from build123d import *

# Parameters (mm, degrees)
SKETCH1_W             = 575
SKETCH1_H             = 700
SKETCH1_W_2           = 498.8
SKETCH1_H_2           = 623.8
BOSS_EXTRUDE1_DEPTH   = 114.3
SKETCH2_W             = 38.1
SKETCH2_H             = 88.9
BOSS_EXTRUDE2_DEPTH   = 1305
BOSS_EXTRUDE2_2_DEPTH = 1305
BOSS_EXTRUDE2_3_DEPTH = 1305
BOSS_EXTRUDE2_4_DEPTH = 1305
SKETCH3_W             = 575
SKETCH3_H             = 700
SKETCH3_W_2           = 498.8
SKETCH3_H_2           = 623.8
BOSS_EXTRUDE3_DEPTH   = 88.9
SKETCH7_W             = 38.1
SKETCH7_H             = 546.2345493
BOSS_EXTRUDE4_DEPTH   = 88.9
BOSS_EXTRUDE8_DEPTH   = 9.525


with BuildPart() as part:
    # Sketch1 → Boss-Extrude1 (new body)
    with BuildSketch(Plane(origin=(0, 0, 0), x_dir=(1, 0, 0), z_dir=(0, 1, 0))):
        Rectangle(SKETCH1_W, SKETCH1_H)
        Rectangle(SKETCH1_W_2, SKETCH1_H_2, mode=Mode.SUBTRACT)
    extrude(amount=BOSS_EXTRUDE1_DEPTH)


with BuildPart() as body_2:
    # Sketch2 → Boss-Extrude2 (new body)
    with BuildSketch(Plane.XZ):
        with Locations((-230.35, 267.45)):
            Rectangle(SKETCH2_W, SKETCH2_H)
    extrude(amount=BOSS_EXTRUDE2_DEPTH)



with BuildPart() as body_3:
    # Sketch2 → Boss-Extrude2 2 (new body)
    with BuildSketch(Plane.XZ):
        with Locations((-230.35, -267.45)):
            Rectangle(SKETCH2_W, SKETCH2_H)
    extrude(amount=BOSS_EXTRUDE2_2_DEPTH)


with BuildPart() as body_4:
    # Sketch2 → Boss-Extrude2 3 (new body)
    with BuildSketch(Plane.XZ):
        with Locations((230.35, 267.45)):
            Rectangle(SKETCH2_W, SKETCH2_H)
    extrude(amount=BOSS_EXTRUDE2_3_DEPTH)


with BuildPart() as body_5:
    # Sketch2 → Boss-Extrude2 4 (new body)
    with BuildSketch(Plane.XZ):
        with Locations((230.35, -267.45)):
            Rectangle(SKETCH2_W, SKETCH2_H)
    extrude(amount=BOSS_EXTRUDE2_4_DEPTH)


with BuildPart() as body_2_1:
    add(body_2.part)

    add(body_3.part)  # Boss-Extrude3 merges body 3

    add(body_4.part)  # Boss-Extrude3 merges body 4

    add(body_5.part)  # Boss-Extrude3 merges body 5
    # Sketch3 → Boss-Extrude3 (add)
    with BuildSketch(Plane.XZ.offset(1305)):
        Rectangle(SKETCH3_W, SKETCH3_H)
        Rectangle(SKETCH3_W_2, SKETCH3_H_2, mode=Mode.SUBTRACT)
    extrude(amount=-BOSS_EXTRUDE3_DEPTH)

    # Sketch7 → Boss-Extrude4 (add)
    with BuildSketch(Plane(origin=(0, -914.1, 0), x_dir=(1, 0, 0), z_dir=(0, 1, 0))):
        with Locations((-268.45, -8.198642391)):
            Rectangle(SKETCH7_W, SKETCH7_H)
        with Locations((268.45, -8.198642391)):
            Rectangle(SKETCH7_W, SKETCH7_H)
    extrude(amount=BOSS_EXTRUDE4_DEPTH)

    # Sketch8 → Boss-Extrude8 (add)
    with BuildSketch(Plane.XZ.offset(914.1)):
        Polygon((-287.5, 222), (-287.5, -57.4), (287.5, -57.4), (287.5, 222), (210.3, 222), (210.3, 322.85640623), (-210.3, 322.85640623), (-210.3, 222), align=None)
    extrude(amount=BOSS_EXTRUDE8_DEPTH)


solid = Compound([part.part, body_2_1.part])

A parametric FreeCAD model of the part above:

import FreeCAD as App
import Part
import Sketcher

V = App.Vector

doc = App.newDocument("Part")
body = doc.addObject("PartDesign::Body", "Body")

# Sketch on XZ plane
sketch1 = body.newObject("Sketcher::SketchObject", "Sketch")
sketch1.AttachmentSupport = (doc.getObject("XZ_Plane"), [""])
sketch1.MapMode = "FlatFace"
sketch1.addGeometry([
    Part.LineSegment(V(-288, -350, 0), V(-288, 350, 0)),  # 0
    Part.LineSegment(V(-288, 350, 0), V(288, 350, 0)),  # 1
    Part.LineSegment(V(288, 350, 0), V(288, -350, 0)),  # 2
    Part.LineSegment(V(288, -350, 0), V(-288, -350, 0)),  # 3
    Part.LineSegment(V(249, 312, 0), V(-249, 312, 0)),  # 4
    Part.LineSegment(V(-249, 312, 0), V(-249, -312, 0)),  # 5
    Part.LineSegment(V(-249, -312, 0), V(249, -312, 0)),  # 6
    Part.LineSegment(V(249, -312, 0), V(249, 312, 0)),  # 7
], False)
sketch1.addConstraint([
    Sketcher.Constraint("Coincident", 0, 2, 1, 1),
    Sketcher.Constraint("Coincident", 1, 2, 2, 1),
    Sketcher.Constraint("Coincident", 2, 2, 3, 1),
    Sketcher.Constraint("Coincident", 3, 2, 0, 1),
    Sketcher.Constraint("Coincident", 4, 2, 5, 1),
    Sketcher.Constraint("Coincident", 5, 2, 6, 1),
    Sketcher.Constraint("Coincident", 6, 2, 7, 1),
    Sketcher.Constraint("Coincident", 7, 2, 4, 1),
    Sketcher.Constraint("Vertical", 0),
    Sketcher.Constraint("Horizontal", 1),
    Sketcher.Constraint("Vertical", 2),
    Sketcher.Constraint("Horizontal", 3),
    Sketcher.Constraint("Horizontal", 4),
    Sketcher.Constraint("Vertical", 5),
    Sketcher.Constraint("Horizontal", 6),
    Sketcher.Constraint("Vertical", 7),
    Sketcher.Constraint("Symmetric", 0, 2, 2, 2, -1, 1),
    Sketcher.Constraint("Symmetric", 4, 2, 6, 2, -1, 1),
    Sketcher.Constraint("DistanceX", 1, 1, 1, 2, 575.0),
    Sketcher.Constraint("DistanceY", 0, 1, 0, 2, 700.0),
    Sketcher.Constraint("DistanceX", 4, 2, 4, 1, 498.8),
    Sketcher.Constraint("DistanceY", 5, 2, 5, 1, 623.8),
])
pad1 = body.newObject("PartDesign::Pad", "Pad")
pad1.Profile = sketch1
pad1.Length = 114.3
pad1.Reversed = True
body2 = doc.addObject("PartDesign::Body", "Body001")

# Sketch on XZ plane
sketch2 = body2.newObject("Sketcher::SketchObject", "Sketch001")
sketch2.AttachmentSupport = (doc.getObject("XZ_Plane001"), [""])
sketch2.MapMode = "FlatFace"
sketch2.addGeometry([
    Part.LineSegment(V(-249, 312, 0), V(-249, 223, 0)),
    Part.LineSegment(V(-249, 223, 0), V(-211, 223, 0)),
    Part.LineSegment(V(-211, 223, 0), V(-211, 312, 0)),
    Part.LineSegment(V(-211, 312, 0), V(-249, 312, 0)),
], False)
sketch2.addConstraint([
    Sketcher.Constraint("Coincident", 0, 2, 1, 1),
    Sketcher.Constraint("Coincident", 1, 2, 2, 1),
    Sketcher.Constraint("Coincident", 2, 2, 3, 1),
    Sketcher.Constraint("Coincident", 3, 2, 0, 1),
    Sketcher.Constraint("Vertical", 0),
    Sketcher.Constraint("Horizontal", 1),
    Sketcher.Constraint("Vertical", 2),
    Sketcher.Constraint("Horizontal", 3),
    Sketcher.Constraint("DistanceX", 1, 1, 1, 2, 38.1),
    Sketcher.Constraint("DistanceY", 0, 2, 0, 1, 88.9),
    Sketcher.Constraint("DistanceY", -1, 1, 0, 2, 223.0),
    Sketcher.Constraint("DistanceX", 0, 2, -1, 1, 249.4),
])
pad2 = body2.newObject("PartDesign::Pad", "Pad001")
pad2.Profile = sketch2
pad2.Length = 1305
body3 = doc.addObject("PartDesign::Body", "Body002")

# Sketch on XZ plane
sketch3 = body3.newObject("Sketcher::SketchObject", "Sketch002")
sketch3.AttachmentSupport = (doc.getObject("XZ_Plane002"), [""])
sketch3.MapMode = "FlatFace"
sketch3.addGeometry([
    Part.LineSegment(V(-249, -223, 0), V(-249, -312, 0)),
    Part.LineSegment(V(-249, -312, 0), V(-211, -312, 0)),
    Part.LineSegment(V(-211, -312, 0), V(-211, -223, 0)),
    Part.LineSegment(V(-211, -223, 0), V(-249, -223, 0)),
], False)
sketch3.addConstraint([
    Sketcher.Constraint("Coincident", 0, 2, 1, 1),
    Sketcher.Constraint("Coincident", 1, 2, 2, 1),
    Sketcher.Constraint("Coincident", 2, 2, 3, 1),
    Sketcher.Constraint("Coincident", 3, 2, 0, 1),
    Sketcher.Constraint("Vertical", 0),
    Sketcher.Constraint("Horizontal", 1),
    Sketcher.Constraint("Vertical", 2),
    Sketcher.Constraint("Horizontal", 3),
    Sketcher.Constraint("DistanceX", 1, 1, 1, 2, 38.1),
    Sketcher.Constraint("DistanceY", 0, 2, 0, 1, 88.9),
    Sketcher.Constraint("DistanceY", 2, 2, -1, 1, 223.0),
    Sketcher.Constraint("DistanceX", 0, 2, -1, 1, 249.4),
])
pad3 = body3.newObject("PartDesign::Pad", "Pad002")
pad3.Profile = sketch3
pad3.Length = 1305
body4 = doc.addObject("PartDesign::Body", "Body003")

# Sketch on XZ plane
sketch4 = body4.newObject("Sketcher::SketchObject", "Sketch003")
sketch4.AttachmentSupport = (doc.getObject("XZ_Plane003"), [""])
sketch4.MapMode = "FlatFace"
sketch4.addGeometry([
    Part.LineSegment(V(211, 312, 0), V(211, 223, 0)),
    Part.LineSegment(V(211, 223, 0), V(249, 223, 0)),
    Part.LineSegment(V(249, 223, 0), V(249, 312, 0)),
    Part.LineSegment(V(249, 312, 0), V(211, 312, 0)),
], False)
sketch4.addConstraint([
    Sketcher.Constraint("Coincident", 0, 2, 1, 1),
    Sketcher.Constraint("Coincident", 1, 2, 2, 1),
    Sketcher.Constraint("Coincident", 2, 2, 3, 1),
    Sketcher.Constraint("Coincident", 3, 2, 0, 1),
    Sketcher.Constraint("Vertical", 0),
    Sketcher.Constraint("Horizontal", 1),
    Sketcher.Constraint("Vertical", 2),
    Sketcher.Constraint("Horizontal", 3),
    Sketcher.Constraint("DistanceX", 1, 1, 1, 2, 38.1),
    Sketcher.Constraint("DistanceY", 0, 2, 0, 1, 88.9),
    Sketcher.Constraint("DistanceY", -1, 1, 0, 2, 223.0),
    Sketcher.Constraint("DistanceX", -1, 1, 0, 2, 211.3),
])
pad4 = body4.newObject("PartDesign::Pad", "Pad003")
pad4.Profile = sketch4
pad4.Length = 1305
body5 = doc.addObject("PartDesign::Body", "Body004")

# Sketch on XZ plane
sketch5 = body5.newObject("Sketcher::SketchObject", "Sketch004")
sketch5.AttachmentSupport = (doc.getObject("XZ_Plane004"), [""])
sketch5.MapMode = "FlatFace"
sketch5.addGeometry([
    Part.LineSegment(V(211, -223, 0), V(211, -312, 0)),
    Part.LineSegment(V(211, -312, 0), V(249, -312, 0)),
    Part.LineSegment(V(249, -312, 0), V(249, -223, 0)),
    Part.LineSegment(V(249, -223, 0), V(211, -223, 0)),
], False)
sketch5.addConstraint([
    Sketcher.Constraint("Coincident", 0, 2, 1, 1),
    Sketcher.Constraint("Coincident", 1, 2, 2, 1),
    Sketcher.Constraint("Coincident", 2, 2, 3, 1),
    Sketcher.Constraint("Coincident", 3, 2, 0, 1),
    Sketcher.Constraint("Vertical", 0),
    Sketcher.Constraint("Horizontal", 1),
    Sketcher.Constraint("Vertical", 2),
    Sketcher.Constraint("Horizontal", 3),
    Sketcher.Constraint("DistanceX", 1, 1, 1, 2, 38.1),
    Sketcher.Constraint("DistanceY", 0, 2, 0, 1, 88.9),
    Sketcher.Constraint("DistanceY", 2, 2, -1, 1, 223.0),
    Sketcher.Constraint("DistanceX", -1, 1, 0, 2, 211.3),
])
pad5 = body5.newObject("PartDesign::Pad", "Pad004")
pad5.Profile = sketch5
pad5.Length = 1305
body2.AllowCompound = True
doc.recompute()

boolean = body2.newObject("PartDesign::Boolean", "Boolean")
boolean.Type = "Fuse"
boolean.addObjects([body3])
doc.recompute()

boolean2 = body2.newObject("PartDesign::Boolean", "Boolean001")
boolean2.Type = "Fuse"
boolean2.addObjects([body4])
doc.recompute()

boolean3 = body2.newObject("PartDesign::Boolean", "Boolean002")
boolean3.Type = "Fuse"
boolean3.addObjects([body5])

# Sketch on XZ plane
sketch6 = body2.newObject("Sketcher::SketchObject", "Sketch005")
sketch6.AttachmentSupport = (doc.getObject("XZ_Plane001"), [""])
sketch6.MapMode = "FlatFace"
sketch6.AttachmentOffset = App.Placement(V(0, 0, 1305), App.Rotation())
sketch6.addGeometry([
    Part.LineSegment(V(-288, 350, 0), V(-288, -350, 0)),  # 0
    Part.LineSegment(V(-288, -350, 0), V(288, -350, 0)),  # 1
    Part.LineSegment(V(288, -350, 0), V(288, 350, 0)),  # 2
    Part.LineSegment(V(288, 350, 0), V(-288, 350, 0)),  # 3
    Part.LineSegment(V(249, -312, 0), V(-249, -312, 0)),  # 4
    Part.LineSegment(V(-249, -312, 0), V(-249, 312, 0)),  # 5
    Part.LineSegment(V(-249, 312, 0), V(249, 312, 0)),  # 6
    Part.LineSegment(V(249, 312, 0), V(249, -312, 0)),  # 7
], False)
sketch6.addConstraint([
    Sketcher.Constraint("Coincident", 0, 2, 1, 1),
    Sketcher.Constraint("Coincident", 1, 2, 2, 1),
    Sketcher.Constraint("Coincident", 2, 2, 3, 1),
    Sketcher.Constraint("Coincident", 3, 2, 0, 1),
    Sketcher.Constraint("Coincident", 4, 2, 5, 1),
    Sketcher.Constraint("Coincident", 5, 2, 6, 1),
    Sketcher.Constraint("Coincident", 6, 2, 7, 1),
    Sketcher.Constraint("Coincident", 7, 2, 4, 1),
    Sketcher.Constraint("Vertical", 0),
    Sketcher.Constraint("Horizontal", 1),
    Sketcher.Constraint("Vertical", 2),
    Sketcher.Constraint("Horizontal", 3),
    Sketcher.Constraint("Horizontal", 4),
    Sketcher.Constraint("Vertical", 5),
    Sketcher.Constraint("Horizontal", 6),
    Sketcher.Constraint("Vertical", 7),
    Sketcher.Constraint("Symmetric", 0, 2, 2, 2, -1, 1),
    Sketcher.Constraint("Symmetric", 4, 2, 6, 2, -1, 1),
    Sketcher.Constraint("DistanceX", 1, 1, 1, 2, 575.0),
    Sketcher.Constraint("DistanceY", 0, 2, 0, 1, 700.0),
    Sketcher.Constraint("DistanceX", 4, 2, 4, 1, 498.8),
    Sketcher.Constraint("DistanceY", 5, 1, 5, 2, 623.8),
])
pad6 = body2.newObject("PartDesign::Pad", "Pad005")
pad6.Profile = sketch6
pad6.Length = 88.9
pad6.Reversed = True

# Sketch on XZ plane
sketch7 = body2.newObject("Sketcher::SketchObject", "Sketch006")
sketch7.AttachmentSupport = (doc.getObject("XZ_Plane001"), [""])
sketch7.MapMode = "FlatFace"
sketch7.AttachmentOffset = App.Placement(V(0, 0, 914.1), App.Rotation())
sketch7.addGeometry([
    Part.LineSegment(V(-288, -265, 0), V(-288, 281, 0)),  # 0
    Part.LineSegment(V(-288, 281, 0), V(-249, 281, 0)),  # 1
    Part.LineSegment(V(-249, 281, 0), V(-249, -265, 0)),  # 2
    Part.LineSegment(V(-249, -265, 0), V(-288, -265, 0)),  # 3
    Part.LineSegment(V(249, -265, 0), V(249, 281, 0)),  # 4
    Part.LineSegment(V(249, 281, 0), V(288, 281, 0)),  # 5
    Part.LineSegment(V(288, 281, 0), V(288, -265, 0)),  # 6
    Part.LineSegment(V(288, -265, 0), V(249, -265, 0)),  # 7
], False)
sketch7.addConstraint([
    Sketcher.Constraint("Coincident", 0, 2, 1, 1),
    Sketcher.Constraint("Coincident", 1, 2, 2, 1),
    Sketcher.Constraint("Coincident", 2, 2, 3, 1),
    Sketcher.Constraint("Coincident", 3, 2, 0, 1),
    Sketcher.Constraint("Coincident", 4, 2, 5, 1),
    Sketcher.Constraint("Coincident", 5, 2, 6, 1),
    Sketcher.Constraint("Coincident", 6, 2, 7, 1),
    Sketcher.Constraint("Coincident", 7, 2, 4, 1),
    Sketcher.Constraint("Vertical", 0),
    Sketcher.Constraint("Horizontal", 1),
    Sketcher.Constraint("Vertical", 2),
    Sketcher.Constraint("Horizontal", 3),
    Sketcher.Constraint("Vertical", 4),
    Sketcher.Constraint("Horizontal", 5),
    Sketcher.Constraint("Vertical", 6),
    Sketcher.Constraint("Horizontal", 7),
    Sketcher.Constraint("Symmetric", 1, 2, 4, 2, -2),
    Sketcher.Constraint("Symmetric", 3, 2, 6, 2, -2),
    Sketcher.Constraint("DistanceX", 1, 1, 1, 2, 38.1),
    Sketcher.Constraint("DistanceX", 0, 2, 5, 2, 575.0),
    Sketcher.Constraint("DistanceY", 0, 1, 0, 2, 546.234549),
    Sketcher.Constraint("DistanceY", -1, 1, 0, 2, 281.315917),
])
pad7 = body2.newObject("PartDesign::Pad", "Pad006")
pad7.Profile = sketch7
pad7.Length = 88.9
pad7.Reversed = True

# Sketch on XZ plane
sketch8 = body2.newObject("Sketcher::SketchObject", "Sketch007")
sketch8.AttachmentSupport = (doc.getObject("XZ_Plane001"), [""])
sketch8.MapMode = "FlatFace"
sketch8.AttachmentOffset = App.Placement(V(0, 0, 914.1), App.Rotation())
sketch8.addGeometry([
    Part.LineSegment(V(-288, 222, 0), V(-288, -57, 0)),  # 0
    Part.LineSegment(V(-288, -57, 0), V(288, -57, 0)),  # 1
    Part.LineSegment(V(288, -57, 0), V(288, 222, 0)),  # 2
    Part.LineSegment(V(288, 222, 0), V(210, 222, 0)),  # 3
    Part.LineSegment(V(210, 222, 0), V(210, 323, 0)),  # 4
    Part.LineSegment(V(210, 323, 0), V(-210, 323, 0)),  # 5
    Part.LineSegment(V(-210, 323, 0), V(-210, 222, 0)),  # 6
    Part.LineSegment(V(-210, 222, 0), V(-288, 222, 0)),  # 7
], False)
sketch8.addConstraint([
    Sketcher.Constraint("Coincident", 0, 2, 1, 1),
    Sketcher.Constraint("Coincident", 1, 2, 2, 1),
    Sketcher.Constraint("Coincident", 2, 2, 3, 1),
    Sketcher.Constraint("Coincident", 3, 2, 4, 1),
    Sketcher.Constraint("Coincident", 4, 2, 5, 1),
    Sketcher.Constraint("Coincident", 5, 2, 6, 1),
    Sketcher.Constraint("Coincident", 6, 2, 7, 1),
    Sketcher.Constraint("Coincident", 7, 2, 0, 1),
    Sketcher.Constraint("Vertical", 0),
    Sketcher.Constraint("Horizontal", 1),
    Sketcher.Constraint("Vertical", 2),
    Sketcher.Constraint("Horizontal", 3),
    Sketcher.Constraint("Vertical", 4),
    Sketcher.Constraint("Horizontal", 5),
    Sketcher.Constraint("Vertical", 6),
    Sketcher.Constraint("Horizontal", 7),
    Sketcher.Constraint("Symmetric", 3, 2, 6, 2, -2),
    Sketcher.Constraint("Equal", 3, 7),
    Sketcher.Constraint("DistanceX", 1, 1, 1, 2, 575.0),
    Sketcher.Constraint("DistanceX", 3, 2, 3, 1, 77.2),
    Sketcher.Constraint("DistanceY", 0, 2, 0, 1, 279.4),
    Sketcher.Constraint("DistanceY", -1, 1, 2, 2, 222.0),
    Sketcher.Constraint("DistanceY", 4, 1, 4, 2, 100.856406),
])
pad8 = body2.newObject("PartDesign::Pad", "Pad007")
pad8.Profile = sketch8
pad8.Length = 9.525

doc.recompute()
